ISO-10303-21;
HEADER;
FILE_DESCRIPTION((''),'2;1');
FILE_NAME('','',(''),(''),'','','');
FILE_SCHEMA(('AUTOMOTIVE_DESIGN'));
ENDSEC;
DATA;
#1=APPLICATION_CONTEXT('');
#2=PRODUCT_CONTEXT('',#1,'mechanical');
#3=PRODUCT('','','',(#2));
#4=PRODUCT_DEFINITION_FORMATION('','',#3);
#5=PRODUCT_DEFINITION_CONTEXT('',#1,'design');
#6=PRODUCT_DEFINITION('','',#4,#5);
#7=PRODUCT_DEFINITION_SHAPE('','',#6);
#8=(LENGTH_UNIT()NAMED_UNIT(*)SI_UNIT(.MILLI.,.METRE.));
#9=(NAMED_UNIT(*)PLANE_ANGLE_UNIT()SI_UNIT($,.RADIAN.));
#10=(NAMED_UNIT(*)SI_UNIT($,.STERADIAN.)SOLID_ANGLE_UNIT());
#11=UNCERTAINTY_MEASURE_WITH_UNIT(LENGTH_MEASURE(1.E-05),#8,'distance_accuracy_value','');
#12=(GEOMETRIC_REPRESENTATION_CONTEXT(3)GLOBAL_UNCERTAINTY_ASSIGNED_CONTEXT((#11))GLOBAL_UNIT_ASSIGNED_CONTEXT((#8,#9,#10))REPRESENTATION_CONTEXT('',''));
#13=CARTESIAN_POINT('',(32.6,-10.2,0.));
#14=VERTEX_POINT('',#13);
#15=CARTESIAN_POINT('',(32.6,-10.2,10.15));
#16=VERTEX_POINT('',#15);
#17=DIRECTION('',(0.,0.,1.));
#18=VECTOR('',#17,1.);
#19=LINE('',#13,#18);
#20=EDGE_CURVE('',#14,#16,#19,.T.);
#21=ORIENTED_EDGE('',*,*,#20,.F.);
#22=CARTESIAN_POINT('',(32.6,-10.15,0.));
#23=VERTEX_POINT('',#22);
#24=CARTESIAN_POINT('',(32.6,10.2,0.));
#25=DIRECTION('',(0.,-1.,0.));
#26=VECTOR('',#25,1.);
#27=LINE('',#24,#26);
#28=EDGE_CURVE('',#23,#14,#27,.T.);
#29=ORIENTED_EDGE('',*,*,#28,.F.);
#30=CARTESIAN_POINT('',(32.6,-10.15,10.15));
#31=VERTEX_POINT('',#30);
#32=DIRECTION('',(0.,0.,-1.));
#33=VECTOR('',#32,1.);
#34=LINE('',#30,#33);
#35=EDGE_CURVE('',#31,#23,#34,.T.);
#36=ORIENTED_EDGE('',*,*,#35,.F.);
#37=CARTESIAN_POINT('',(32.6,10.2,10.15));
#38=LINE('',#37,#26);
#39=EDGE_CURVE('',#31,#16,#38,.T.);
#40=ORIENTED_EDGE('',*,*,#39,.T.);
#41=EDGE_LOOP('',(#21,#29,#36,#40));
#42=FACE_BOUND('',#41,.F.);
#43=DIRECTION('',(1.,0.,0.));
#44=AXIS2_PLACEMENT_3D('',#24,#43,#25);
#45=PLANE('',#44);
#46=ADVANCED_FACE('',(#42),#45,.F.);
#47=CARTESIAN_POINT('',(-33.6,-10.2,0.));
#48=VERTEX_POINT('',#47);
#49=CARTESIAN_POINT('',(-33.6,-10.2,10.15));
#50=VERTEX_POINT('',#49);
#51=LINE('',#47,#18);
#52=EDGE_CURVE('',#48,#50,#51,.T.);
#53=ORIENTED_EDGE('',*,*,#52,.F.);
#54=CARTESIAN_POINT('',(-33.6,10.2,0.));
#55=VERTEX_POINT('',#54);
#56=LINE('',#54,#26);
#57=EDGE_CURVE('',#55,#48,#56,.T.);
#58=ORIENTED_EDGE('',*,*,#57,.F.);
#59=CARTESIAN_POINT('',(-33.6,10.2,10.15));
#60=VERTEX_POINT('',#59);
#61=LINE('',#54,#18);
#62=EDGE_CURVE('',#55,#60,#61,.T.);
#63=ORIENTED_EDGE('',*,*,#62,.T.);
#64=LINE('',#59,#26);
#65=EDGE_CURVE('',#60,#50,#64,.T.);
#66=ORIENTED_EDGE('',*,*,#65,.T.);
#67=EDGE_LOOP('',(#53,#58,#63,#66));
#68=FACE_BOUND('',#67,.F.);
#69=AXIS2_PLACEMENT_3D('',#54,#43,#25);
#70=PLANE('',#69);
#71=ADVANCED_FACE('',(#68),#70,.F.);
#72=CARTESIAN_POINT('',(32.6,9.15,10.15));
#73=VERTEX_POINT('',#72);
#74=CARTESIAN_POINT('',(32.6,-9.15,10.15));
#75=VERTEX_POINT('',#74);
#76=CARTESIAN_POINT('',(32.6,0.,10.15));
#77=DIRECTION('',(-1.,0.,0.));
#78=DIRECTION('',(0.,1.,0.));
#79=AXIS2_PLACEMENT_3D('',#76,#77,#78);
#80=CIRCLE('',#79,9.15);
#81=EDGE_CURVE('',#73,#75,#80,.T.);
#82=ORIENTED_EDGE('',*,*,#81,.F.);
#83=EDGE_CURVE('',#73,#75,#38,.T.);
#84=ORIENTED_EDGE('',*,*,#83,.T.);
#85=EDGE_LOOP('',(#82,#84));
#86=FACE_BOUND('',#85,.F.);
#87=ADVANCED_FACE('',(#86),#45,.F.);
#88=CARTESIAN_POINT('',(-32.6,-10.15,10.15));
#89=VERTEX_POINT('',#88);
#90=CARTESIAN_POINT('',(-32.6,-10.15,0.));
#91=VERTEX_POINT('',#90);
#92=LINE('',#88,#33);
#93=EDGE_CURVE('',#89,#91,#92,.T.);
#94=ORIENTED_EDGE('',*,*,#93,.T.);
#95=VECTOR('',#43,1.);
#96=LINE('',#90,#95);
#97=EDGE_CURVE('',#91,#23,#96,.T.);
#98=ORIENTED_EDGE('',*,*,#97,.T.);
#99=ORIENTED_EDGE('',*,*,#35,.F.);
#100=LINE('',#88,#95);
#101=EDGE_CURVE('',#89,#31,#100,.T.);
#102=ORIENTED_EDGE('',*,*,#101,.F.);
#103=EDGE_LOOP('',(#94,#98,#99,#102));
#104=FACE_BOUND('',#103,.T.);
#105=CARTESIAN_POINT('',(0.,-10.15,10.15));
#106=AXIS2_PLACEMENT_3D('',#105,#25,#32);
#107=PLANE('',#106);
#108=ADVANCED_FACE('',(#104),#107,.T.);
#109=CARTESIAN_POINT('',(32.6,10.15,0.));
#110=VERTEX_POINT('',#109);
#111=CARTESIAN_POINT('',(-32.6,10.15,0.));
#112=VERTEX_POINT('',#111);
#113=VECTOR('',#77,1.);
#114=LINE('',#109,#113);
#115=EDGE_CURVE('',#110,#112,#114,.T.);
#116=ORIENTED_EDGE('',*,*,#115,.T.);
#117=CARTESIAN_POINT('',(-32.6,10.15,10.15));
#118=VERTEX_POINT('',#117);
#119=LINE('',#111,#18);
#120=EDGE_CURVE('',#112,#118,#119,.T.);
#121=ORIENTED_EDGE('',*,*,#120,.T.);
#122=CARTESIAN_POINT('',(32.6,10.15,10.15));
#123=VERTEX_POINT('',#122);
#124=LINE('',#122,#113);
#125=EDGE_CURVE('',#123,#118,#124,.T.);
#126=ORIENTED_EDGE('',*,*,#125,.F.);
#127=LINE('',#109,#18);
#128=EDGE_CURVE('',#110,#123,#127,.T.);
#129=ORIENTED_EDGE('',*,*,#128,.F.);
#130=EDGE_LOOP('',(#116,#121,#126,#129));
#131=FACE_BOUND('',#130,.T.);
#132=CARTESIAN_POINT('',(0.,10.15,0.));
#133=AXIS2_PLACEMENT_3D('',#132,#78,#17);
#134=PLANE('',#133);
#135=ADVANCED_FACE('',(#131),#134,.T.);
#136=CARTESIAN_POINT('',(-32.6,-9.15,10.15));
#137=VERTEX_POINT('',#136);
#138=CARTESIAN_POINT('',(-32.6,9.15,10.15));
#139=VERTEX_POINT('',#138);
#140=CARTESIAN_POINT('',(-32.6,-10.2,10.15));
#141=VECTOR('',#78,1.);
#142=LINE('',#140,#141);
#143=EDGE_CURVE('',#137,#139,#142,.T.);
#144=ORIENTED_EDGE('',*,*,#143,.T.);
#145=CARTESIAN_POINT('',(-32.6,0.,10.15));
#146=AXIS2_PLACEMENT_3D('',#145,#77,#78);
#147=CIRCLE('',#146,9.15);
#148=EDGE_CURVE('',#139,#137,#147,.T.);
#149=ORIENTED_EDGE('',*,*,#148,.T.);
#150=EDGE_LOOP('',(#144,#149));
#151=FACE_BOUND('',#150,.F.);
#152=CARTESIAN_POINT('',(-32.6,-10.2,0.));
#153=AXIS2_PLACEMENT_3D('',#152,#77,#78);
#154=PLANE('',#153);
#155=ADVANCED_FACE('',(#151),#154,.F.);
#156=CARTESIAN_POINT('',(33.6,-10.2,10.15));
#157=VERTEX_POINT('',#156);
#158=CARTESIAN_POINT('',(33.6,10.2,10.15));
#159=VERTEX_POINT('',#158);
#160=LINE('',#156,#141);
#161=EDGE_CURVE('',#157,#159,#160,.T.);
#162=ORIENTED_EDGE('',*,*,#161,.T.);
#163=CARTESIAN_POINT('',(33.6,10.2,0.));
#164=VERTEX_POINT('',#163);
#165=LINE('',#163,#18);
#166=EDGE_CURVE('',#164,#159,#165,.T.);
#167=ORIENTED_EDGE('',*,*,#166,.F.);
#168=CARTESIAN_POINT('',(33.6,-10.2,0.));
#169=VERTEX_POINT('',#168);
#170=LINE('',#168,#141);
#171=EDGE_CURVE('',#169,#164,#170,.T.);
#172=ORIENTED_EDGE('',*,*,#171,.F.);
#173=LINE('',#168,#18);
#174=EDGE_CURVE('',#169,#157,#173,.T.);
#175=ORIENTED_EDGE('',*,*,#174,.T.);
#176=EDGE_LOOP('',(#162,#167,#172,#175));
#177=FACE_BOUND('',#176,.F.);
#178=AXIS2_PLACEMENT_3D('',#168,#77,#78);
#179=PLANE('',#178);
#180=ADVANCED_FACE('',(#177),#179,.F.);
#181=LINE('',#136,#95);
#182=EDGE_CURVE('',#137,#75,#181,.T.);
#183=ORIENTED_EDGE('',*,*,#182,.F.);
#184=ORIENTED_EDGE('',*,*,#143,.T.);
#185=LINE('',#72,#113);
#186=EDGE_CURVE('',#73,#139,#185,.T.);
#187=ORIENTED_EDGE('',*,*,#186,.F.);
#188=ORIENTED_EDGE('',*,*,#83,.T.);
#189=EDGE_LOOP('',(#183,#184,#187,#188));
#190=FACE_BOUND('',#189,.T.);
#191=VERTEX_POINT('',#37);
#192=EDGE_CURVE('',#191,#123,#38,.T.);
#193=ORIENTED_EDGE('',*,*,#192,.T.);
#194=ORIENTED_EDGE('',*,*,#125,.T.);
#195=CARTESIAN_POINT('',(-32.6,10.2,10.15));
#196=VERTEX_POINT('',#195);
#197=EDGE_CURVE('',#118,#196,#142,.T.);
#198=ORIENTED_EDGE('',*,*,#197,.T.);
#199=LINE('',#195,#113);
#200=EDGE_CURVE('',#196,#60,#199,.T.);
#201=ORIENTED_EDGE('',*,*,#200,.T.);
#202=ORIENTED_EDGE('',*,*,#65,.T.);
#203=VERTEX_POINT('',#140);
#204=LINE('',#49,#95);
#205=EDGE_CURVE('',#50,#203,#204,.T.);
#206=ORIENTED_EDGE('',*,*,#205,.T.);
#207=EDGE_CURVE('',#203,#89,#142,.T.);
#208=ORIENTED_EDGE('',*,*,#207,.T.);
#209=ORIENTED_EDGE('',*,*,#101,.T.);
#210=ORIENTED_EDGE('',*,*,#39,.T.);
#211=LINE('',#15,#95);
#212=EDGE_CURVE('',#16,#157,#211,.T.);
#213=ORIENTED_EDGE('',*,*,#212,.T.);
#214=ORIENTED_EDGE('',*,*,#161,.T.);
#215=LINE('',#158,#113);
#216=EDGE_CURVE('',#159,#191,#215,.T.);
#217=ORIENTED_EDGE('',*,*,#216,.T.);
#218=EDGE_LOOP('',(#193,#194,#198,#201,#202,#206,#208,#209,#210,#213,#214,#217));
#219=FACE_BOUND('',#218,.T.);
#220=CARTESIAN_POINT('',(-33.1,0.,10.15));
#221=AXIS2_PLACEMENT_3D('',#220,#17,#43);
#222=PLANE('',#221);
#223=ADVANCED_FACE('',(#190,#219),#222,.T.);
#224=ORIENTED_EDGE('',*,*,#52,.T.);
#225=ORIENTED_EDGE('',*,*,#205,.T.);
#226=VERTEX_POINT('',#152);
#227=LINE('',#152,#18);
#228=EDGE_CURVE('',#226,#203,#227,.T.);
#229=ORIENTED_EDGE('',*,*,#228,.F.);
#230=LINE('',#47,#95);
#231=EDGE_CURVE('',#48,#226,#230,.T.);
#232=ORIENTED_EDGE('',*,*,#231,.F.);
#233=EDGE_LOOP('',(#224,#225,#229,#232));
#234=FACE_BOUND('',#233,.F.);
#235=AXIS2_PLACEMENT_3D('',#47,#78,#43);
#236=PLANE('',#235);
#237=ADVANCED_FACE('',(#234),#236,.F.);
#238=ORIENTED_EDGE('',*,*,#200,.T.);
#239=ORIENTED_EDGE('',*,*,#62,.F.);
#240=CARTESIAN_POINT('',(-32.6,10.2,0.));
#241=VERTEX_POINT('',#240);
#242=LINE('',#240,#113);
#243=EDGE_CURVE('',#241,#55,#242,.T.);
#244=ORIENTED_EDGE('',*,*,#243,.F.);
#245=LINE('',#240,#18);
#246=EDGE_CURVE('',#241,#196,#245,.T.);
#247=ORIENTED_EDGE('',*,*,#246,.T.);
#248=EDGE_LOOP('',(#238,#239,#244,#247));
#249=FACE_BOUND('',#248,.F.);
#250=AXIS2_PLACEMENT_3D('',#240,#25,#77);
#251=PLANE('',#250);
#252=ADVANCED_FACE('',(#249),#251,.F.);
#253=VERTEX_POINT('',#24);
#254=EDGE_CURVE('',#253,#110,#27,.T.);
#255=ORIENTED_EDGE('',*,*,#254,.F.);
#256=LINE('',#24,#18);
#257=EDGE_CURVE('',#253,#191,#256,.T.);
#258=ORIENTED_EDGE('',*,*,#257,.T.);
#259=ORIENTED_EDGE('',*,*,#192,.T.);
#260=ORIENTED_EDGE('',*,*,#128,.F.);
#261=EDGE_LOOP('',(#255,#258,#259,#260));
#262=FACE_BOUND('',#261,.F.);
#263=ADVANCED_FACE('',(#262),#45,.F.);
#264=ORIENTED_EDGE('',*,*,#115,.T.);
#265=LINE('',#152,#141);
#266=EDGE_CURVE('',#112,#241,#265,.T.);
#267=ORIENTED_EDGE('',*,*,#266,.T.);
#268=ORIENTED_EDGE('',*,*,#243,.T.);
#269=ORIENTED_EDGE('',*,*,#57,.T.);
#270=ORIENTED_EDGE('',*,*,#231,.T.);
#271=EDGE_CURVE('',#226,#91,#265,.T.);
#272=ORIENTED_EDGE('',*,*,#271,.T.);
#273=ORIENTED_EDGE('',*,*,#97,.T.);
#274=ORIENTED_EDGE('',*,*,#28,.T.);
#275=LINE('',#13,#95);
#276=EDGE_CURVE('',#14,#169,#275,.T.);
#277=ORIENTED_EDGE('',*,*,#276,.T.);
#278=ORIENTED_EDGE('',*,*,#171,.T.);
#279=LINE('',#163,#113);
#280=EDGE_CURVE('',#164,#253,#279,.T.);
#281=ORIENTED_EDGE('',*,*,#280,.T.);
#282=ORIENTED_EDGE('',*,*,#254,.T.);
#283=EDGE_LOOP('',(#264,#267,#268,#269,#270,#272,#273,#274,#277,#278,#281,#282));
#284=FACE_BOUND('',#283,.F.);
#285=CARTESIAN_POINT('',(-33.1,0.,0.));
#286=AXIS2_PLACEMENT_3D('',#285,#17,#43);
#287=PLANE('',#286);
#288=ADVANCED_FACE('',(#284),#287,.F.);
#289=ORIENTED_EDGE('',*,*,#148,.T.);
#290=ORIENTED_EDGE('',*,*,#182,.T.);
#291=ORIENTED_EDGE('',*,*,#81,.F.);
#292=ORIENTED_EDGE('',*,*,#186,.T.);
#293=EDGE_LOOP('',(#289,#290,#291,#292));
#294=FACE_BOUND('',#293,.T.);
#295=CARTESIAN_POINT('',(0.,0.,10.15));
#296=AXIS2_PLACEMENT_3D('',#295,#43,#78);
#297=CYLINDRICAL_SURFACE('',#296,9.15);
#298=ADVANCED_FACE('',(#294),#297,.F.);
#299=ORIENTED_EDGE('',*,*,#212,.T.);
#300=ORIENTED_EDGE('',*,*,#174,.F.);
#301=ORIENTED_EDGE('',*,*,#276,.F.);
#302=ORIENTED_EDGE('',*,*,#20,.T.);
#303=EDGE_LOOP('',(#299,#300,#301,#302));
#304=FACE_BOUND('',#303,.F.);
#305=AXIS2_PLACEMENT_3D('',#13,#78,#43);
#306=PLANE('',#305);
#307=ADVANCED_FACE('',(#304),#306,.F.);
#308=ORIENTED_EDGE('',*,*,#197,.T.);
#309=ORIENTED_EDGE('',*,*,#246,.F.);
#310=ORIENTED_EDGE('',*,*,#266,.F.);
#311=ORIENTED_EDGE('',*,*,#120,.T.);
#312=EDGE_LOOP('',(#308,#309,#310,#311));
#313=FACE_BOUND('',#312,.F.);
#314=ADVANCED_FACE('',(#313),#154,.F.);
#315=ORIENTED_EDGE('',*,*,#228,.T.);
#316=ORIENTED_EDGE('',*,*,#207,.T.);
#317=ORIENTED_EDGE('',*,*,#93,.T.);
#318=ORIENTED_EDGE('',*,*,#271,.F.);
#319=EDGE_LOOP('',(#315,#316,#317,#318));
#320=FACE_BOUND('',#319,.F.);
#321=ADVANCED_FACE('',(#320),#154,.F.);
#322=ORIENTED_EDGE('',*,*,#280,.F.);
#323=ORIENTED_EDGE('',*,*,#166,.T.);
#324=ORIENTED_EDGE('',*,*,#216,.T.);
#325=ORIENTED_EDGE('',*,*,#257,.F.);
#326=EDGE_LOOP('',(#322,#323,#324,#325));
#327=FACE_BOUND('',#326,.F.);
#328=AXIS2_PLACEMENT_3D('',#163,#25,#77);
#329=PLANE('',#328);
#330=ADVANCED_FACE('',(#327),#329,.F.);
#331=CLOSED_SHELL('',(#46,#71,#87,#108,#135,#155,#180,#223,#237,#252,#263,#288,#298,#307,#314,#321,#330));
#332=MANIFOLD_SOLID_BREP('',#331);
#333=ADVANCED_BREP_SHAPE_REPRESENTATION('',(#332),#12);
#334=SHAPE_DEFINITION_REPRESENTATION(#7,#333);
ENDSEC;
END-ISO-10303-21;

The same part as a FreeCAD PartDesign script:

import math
import FreeCAD as App
import Part
import Sketcher
from FreeCAD import Vector

doc = App.newDocument("Part")
body = doc.addObject("PartDesign::Body", "Body")

# Sketch on YZ plane
sketch1 = body.newObject("Sketcher::SketchObject", "Sketch")
sketch1.AttachmentSupport = (doc.getObject("YZ_Plane"), [""])
sketch1.MapMode = "FlatFace"
sketch1.addGeometry([
    Part.ArcOfCircle(Part.Circle(Vector(0, 10.2, 0), Vector(0, 0, 1), 9.2), math.radians(180), math.radians(360)),  # 0
    Part.LineSegment(Vector(-9.2, 10.2, 0), Vector(-10.2, 10.2, 0)),  # 1
    Part.LineSegment(Vector(-10.2, 10.2, 0), Vector(-10.2, 0, 0)),  # 2
    Part.LineSegment(Vector(-10.2, 0, 0), Vector(10.2, 0, 0)),  # 3
    Part.LineSegment(Vector(10.2, 0, 0), Vector(10.2, 10.2, 0)),  # 4
    Part.LineSegment(Vector(10.2, 10.2, 0), Vector(9.2, 10.2, 0)),  # 5
], False)
sketch1.addConstraint([
    Sketcher.Constraint("Coincident", 0, 1, 1, 1),
    Sketcher.Constraint("Coincident", 1, 2, 2, 1),
    Sketcher.Constraint("Coincident", 2, 2, 3, 1),
    Sketcher.Constraint("Coincident", 3, 2, 4, 1),
    Sketcher.Constraint("Coincident", 4, 2, 5, 1),
    Sketcher.Constraint("Coincident", 5, 2, 0, 2),
    Sketcher.Constraint("Horizontal", 1),
    Sketcher.Constraint("Vertical", 2),
    Sketcher.Constraint("Horizontal", 3),
    Sketcher.Constraint("Vertical", 4),
    Sketcher.Constraint("Horizontal", 5),
    Sketcher.Constraint("Symmetric", 2, 2, 3, 2, -1, 1),
    Sketcher.Constraint("Symmetric", 0, 1, 5, 2, -2),
    Sketcher.Constraint("DistanceX", 1, 2, 1, 1, 1.0),
    Sketcher.Constraint("Radius", 0, 9.15),
    Sketcher.Constraint("DistanceY", 2, 2, 2, 1, 10.15),
    Sketcher.Constraint("DistanceY", -1, 1, 0, 3, 10.15),
])
pad1 = body.newObject("PartDesign::Pad", "Pad")
pad1.Profile = sketch1
pad1.Length = 65.2
pad1.Midplane = True

# Sketch on XY plane
sketch2 = body.newObject("Sketcher::SketchObject", "Sketch001")
sketch2.AttachmentSupport = (doc.getObject("XY_Plane"), [""])
sketch2.MapMode = "FlatFace"
sketch2.addGeometry([
    Part.LineSegment(Vector(-32.6, -10.2, 0), Vector(-32.6, 10.2, 0)),  # 0
    Part.LineSegment(Vector(-32.6, 10.2, 0), Vector(-33.6, 10.2, 0)),  # 1
    Part.LineSegment(Vector(-33.6, 10.2, 0), Vector(-33.6, -10.2, 0)),  # 2
    Part.LineSegment(Vector(-33.6, -10.2, 0), Vector(-32.6, -10.2, 0)),  # 3
    Part.LineSegment(Vector(32.6, -10.2, 0), Vector(33.6, -10.2, 0)),  # 4
    Part.LineSegment(Vector(33.6, -10.2, 0), Vector(33.6, 10.2, 0)),  # 5
    Part.LineSegment(Vector(33.6, 10.2, 0), Vector(32.6, 10.2, 0)),  # 6
    Part.LineSegment(Vector(32.6, 10.2, 0), Vector(32.6, -10.2, 0)),  # 7
], False)
sketch2.addConstraint([
    Sketcher.Constraint("Coincident", 0, 2, 1, 1),
    Sketcher.Constraint("Coincident", 1, 2, 2, 1),
    Sketcher.Constraint("Coincident", 2, 2, 3, 1),
    Sketcher.Constraint("Coincident", 3, 2, 0, 1),
    Sketcher.Constraint("Coincident", 4, 2, 5, 1),
    Sketcher.Constraint("Coincident", 5, 2, 6, 1),
    Sketcher.Constraint("Coincident", 6, 2, 7, 1),
    Sketcher.Constraint("Coincident", 7, 2, 4, 1),
    Sketcher.Constraint("Vertical", 0),
    Sketcher.Constraint("Horizontal", 1),
    Sketcher.Constraint("Vertical", 2),
    Sketcher.Constraint("Horizontal", 3),
    Sketcher.Constraint("Horizontal", 4),
    Sketcher.Constraint("Vertical", 5),
    Sketcher.Constraint("Horizontal", 6),
    Sketcher.Constraint("Vertical", 7),
    Sketcher.Constraint("Symmetric", 1, 2, 4, 2, -1, 1),
    Sketcher.Constraint("Symmetric", 3, 2, 6, 2, -1, 1),
    Sketcher.Constraint("Horizontal", 3, 2, 4, 2),
    Sketcher.Constraint("DistanceX", 1, 2, 1, 1, 1.0),
    Sketcher.Constraint("DistanceY", 0, 1, 0, 2, 20.4),
    Sketcher.Constraint("DistanceX", 0, 2, -1, 1, 32.6),
])
pad2 = body.newObject("PartDesign::Pad", "Pad001")
pad2.Profile = sketch2
pad2.Length = 10.15

doc.recompute()
